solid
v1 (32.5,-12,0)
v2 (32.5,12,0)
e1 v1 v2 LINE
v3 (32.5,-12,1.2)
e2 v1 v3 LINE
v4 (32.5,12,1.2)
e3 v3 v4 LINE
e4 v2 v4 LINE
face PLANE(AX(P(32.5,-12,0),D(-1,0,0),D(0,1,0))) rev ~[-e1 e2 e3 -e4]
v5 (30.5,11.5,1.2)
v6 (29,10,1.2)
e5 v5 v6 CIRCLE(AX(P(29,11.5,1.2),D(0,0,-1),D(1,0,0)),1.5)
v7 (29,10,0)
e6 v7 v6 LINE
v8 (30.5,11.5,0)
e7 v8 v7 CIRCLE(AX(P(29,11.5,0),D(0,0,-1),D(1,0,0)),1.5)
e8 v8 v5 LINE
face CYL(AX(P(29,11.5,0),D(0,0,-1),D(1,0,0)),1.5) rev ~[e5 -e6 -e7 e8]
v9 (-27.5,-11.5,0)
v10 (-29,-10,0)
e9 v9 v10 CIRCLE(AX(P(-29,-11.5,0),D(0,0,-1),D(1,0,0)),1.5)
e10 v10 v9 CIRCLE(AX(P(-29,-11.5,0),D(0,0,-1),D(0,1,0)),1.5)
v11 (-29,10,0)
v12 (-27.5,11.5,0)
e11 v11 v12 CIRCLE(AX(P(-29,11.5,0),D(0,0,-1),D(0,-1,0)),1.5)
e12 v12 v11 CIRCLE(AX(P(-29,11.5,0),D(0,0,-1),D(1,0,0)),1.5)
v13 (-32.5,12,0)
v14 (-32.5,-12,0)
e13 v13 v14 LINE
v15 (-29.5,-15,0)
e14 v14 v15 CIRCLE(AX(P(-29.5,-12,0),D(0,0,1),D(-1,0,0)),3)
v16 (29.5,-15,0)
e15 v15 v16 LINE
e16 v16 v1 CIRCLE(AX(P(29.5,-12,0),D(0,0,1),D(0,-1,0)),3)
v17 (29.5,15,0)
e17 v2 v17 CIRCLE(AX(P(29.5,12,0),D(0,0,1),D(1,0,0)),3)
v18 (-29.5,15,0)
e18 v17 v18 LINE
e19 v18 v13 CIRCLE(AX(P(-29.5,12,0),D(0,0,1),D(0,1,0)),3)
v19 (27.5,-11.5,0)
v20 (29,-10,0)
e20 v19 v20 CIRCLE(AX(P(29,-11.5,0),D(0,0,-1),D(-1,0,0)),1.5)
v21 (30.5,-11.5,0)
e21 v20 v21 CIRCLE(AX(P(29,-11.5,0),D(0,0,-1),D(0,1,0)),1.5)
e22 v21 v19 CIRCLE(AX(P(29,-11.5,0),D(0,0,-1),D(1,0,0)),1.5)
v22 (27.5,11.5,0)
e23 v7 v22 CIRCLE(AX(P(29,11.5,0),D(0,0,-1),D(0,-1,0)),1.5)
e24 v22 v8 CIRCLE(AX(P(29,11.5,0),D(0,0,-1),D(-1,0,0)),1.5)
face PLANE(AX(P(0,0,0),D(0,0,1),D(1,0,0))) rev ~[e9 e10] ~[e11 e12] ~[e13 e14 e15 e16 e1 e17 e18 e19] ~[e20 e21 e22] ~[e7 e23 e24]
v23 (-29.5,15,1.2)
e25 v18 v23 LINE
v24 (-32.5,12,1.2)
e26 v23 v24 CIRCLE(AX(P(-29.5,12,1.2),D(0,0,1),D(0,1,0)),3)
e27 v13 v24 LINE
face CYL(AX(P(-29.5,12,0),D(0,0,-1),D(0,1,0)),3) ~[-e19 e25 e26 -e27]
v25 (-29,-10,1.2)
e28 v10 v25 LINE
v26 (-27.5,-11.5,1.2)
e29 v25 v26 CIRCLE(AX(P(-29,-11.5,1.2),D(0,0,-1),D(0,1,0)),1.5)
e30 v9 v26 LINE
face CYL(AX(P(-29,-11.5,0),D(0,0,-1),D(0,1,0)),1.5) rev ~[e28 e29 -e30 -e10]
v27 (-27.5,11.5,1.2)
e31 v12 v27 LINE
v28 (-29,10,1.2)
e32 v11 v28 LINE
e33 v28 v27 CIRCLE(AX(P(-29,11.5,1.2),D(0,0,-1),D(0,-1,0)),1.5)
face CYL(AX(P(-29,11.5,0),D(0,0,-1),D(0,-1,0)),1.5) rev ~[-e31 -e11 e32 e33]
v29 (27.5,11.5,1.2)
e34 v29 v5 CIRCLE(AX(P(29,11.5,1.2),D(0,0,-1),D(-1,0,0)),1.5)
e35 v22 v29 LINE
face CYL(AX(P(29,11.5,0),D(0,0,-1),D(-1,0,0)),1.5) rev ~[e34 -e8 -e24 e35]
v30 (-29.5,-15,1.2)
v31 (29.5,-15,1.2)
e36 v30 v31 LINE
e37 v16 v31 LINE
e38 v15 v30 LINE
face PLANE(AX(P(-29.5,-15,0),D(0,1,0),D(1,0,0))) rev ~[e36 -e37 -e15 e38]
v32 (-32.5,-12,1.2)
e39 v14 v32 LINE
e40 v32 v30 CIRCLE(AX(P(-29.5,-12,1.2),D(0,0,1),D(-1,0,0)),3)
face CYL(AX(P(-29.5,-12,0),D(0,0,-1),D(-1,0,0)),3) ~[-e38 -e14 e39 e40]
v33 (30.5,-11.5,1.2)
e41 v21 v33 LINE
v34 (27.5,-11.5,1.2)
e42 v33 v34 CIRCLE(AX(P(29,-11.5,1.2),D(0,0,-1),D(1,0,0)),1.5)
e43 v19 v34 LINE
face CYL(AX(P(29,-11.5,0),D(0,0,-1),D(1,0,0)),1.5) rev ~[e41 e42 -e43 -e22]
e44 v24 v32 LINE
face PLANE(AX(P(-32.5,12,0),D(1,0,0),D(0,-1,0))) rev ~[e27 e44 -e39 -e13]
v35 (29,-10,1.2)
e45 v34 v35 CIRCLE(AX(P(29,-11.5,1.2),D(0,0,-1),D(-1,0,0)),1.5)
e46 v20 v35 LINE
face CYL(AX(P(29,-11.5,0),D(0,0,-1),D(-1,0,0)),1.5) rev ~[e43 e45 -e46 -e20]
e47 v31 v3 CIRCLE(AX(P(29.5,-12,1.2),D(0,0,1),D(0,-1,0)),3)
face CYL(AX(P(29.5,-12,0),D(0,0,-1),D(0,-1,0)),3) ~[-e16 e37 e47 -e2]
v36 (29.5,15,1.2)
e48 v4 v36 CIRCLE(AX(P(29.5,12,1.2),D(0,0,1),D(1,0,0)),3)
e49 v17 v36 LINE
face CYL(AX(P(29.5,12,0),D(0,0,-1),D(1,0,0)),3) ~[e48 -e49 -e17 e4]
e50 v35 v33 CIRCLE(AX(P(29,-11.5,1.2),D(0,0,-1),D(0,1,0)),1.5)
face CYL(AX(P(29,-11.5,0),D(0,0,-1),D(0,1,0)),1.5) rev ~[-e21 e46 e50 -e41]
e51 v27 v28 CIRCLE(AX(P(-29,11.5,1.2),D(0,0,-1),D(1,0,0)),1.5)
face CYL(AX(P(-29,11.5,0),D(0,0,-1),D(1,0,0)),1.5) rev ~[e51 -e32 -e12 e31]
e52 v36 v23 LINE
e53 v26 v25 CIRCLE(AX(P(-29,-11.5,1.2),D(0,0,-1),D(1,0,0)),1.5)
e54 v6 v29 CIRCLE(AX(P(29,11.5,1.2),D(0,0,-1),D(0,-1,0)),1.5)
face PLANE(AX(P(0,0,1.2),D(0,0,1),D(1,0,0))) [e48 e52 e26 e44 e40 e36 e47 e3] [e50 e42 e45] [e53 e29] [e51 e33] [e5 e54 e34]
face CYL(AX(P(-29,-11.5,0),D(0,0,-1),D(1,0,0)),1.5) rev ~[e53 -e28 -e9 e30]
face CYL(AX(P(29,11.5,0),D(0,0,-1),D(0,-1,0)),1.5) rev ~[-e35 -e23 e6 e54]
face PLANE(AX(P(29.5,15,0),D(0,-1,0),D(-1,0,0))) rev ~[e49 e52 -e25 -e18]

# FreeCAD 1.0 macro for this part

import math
import FreeCAD as App
import Part
import Sketcher

V = App.Vector
Q = App.Units.Quantity

doc = App.newDocument("Part")
body = doc.addObject("PartDesign::Body", "Body")

# Sketch on XY plane
sketch1 = doc.addObject("Sketcher::SketchObject", "Sketch")
body.addObject(sketch1)
sketch1.AttachmentSupport = (doc.XY_Plane, [""])
sketch1.MapMode = "FlatFace"
sketch1.addGeometry(Part.LineSegment(V(-29.5, -15, 0), V(29.5, -15, 0)), False)
sketch1.addGeometry(Part.ArcOfCircle(Part.Circle(V(29.5, -12, 0), V(0, 0, 1), 3), math.radians(-90), math.radians(0)), False)
sketch1.addGeometry(Part.LineSegment(V(32.5, -12, 0), V(32.5, 12, 0)), False)
sketch1.addGeometry(Part.ArcOfCircle(Part.Circle(V(29.5, 12, 0), V(0, 0, 1), 3), math.radians(0), math.radians(90)), False)
sketch1.addGeometry(Part.LineSegment(V(29.5, 15, 0), V(-29.5, 15, 0)), False)
sketch1.addGeometry(Part.ArcOfCircle(Part.Circle(V(-29.5, 12, 0), V(0, 0, 1), 3), math.radians(90), math.radians(180)), False)
sketch1.addGeometry(Part.LineSegment(V(-32.5, 12, 0), V(-32.5, -12, 0)), False)
sketch1.addGeometry(Part.ArcOfCircle(Part.Circle(V(-29.5, -12, 0), V(0, 0, 1), 3), math.radians(180), math.radians(270)), False)
sketch1.addGeometry(Part.ArcOfCircle(Part.Circle(V(29, -11.5, 0), V(0, 0, 1), 1.5), math.radians(180), math.radians(360)), False)
sketch1.addGeometry(Part.ArcOfCircle(Part.Circle(V(29, -11.5, 0), V(0, 0, 1), 1.5), math.radians(90), math.radians(180)), False)
sketch1.addGeometry(Part.ArcOfCircle(Part.Circle(V(29, -11.5, 0), V(0, 0, 1), 1.5), math.radians(0), math.radians(90)), False)
sketch1.addGeometry(Part.ArcOfCircle(Part.Circle(V(29, 11.5, 0), V(0, 0, 1), 1.5), math.radians(-90), math.radians(0)), False)
sketch1.addGeometry(Part.ArcOfCircle(Part.Circle(V(29, 11.5, 0), V(0, 0, 1), 1.5), math.radians(180), math.radians(270)), False)
sketch1.addGeometry(Part.ArcOfCircle(Part.Circle(V(29, 11.5, 0), V(0, 0, 1), 1.5), math.radians(0), math.radians(180)), False)
sketch1.addGeometry(Part.ArcOfCircle(Part.Circle(V(-29, 11.5, 0), V(0, 0, 1), 1.5), math.radians(0), math.radians(270)), False)
sketch1.addGeometry(Part.ArcOfCircle(Part.Circle(V(-29, 11.5, 0), V(0, 0, 1), 1.5), math.radians(-90), math.radians(0)), False)
sketch1.addGeometry(Part.ArcOfCircle(Part.Circle(V(-29, -11.5, 0), V(0, 0, 1), 1.5), math.radians(90), math.radians(360)), False)
sketch1.addGeometry(Part.ArcOfCircle(Part.Circle(V(-29, -11.5, 0), V(0, 0, 1), 1.5), math.radians(0), math.radians(90)), False)
sketch1.addConstraint(Sketcher.Constraint("Tangent", 0, 2, 1, 1))
sketch1.addConstraint(Sketcher.Constraint("Tangent", 1, 2, 2, 1))
sketch1.addConstraint(Sketcher.Constraint("Tangent", 2, 2, 3, 1))
sketch1.addConstraint(Sketcher.Constraint("Tangent", 3, 2, 4, 1))
sketch1.addConstraint(Sketcher.Constraint("Tangent", 4, 2, 5, 1))
sketch1.addConstraint(Sketcher.Constraint("Tangent", 5, 2, 6, 1))
sketch1.addConstraint(Sketcher.Constraint("Tangent", 6, 2, 7, 1))
sketch1.addConstraint(Sketcher.Constraint("Tangent", 7, 2, 0, 1))
sketch1.addConstraint(Sketcher.Constraint("Tangent", 8, 1, 9, 2))
sketch1.addConstraint(Sketcher.Constraint("Tangent", 9, 1, 10, 2))
sketch1.addConstraint(Sketcher.Constraint("Tangent", 10, 1, 8, 2))
sketch1.addConstraint(Sketcher.Constraint("Tangent", 11, 1, 12, 2))
sketch1.addConstraint(Sketcher.Constraint("Tangent", 12, 1, 13, 2))
sketch1.addConstraint(Sketcher.Constraint("Tangent", 13, 1, 11, 2))
sketch1.addConstraint(Sketcher.Constraint("Tangent", 14, 1, 15, 2))
sketch1.addConstraint(Sketcher.Constraint("Coincident", 15, 1, 14, 2))
sketch1.addConstraint(Sketcher.Constraint("Tangent", 16, 1, 17, 2))
sketch1.addConstraint(Sketcher.Constraint("Coincident", 17, 1, 16, 2))
sketch1.addConstraint(Sketcher.Constraint("Horizontal", 0))
sketch1.addConstraint(Sketcher.Constraint("Vertical", 2))
sketch1.addConstraint(Sketcher.Constraint("Horizontal", 4))
sketch1.addConstraint(Sketcher.Constraint("Vertical", 6))
sketch1.addConstraint(Sketcher.Constraint("Equal", 1, 3))
sketch1.addConstraint(Sketcher.Constraint("Equal", 3, 5))
sketch1.addConstraint(Sketcher.Constraint("Equal", 5, 7))
sketch1.addConstraint(Sketcher.Constraint("Equal", 10, 11))
sketch1.addConstraint(Sketcher.Constraint("Equal", 13, 14))
sketch1.addConstraint(Sketcher.Constraint("Equal", 15, 16))
sketch1.addConstraint(Sketcher.Constraint("Symmetric", 1, 3, 5, 3, -1, 1))
sketch1.addConstraint(Sketcher.Constraint("Symmetric", 8, 3, 14, 3, -1, 1))
sketch1.addConstraint(Sketcher.Constraint("Symmetric", 11, 3, 16, 3, -1, 1))
sketch1.addConstraint(Sketcher.Constraint("Symmetric", 11, 3, 14, 3, -2))
sketch1.addConstraint(Sketcher.Constraint("Horizontal", 17, 3, 8, 1))
sketch1.addConstraint(Sketcher.Constraint("Horizontal", 8, 1, 10, 1))
sketch1.addConstraint(Sketcher.Constraint("Horizontal", 15, 3, 12, 1))
sketch1.addConstraint(Sketcher.Constraint("Horizontal", 12, 1, 13, 1))
sketch1.addConstraint(Sketcher.Constraint("Horizontal", 13, 1, 14, 1))
sketch1.addConstraint(Sketcher.Constraint("Horizontal", 10, 1, 17, 1))
sketch1.addConstraint(Sketcher.Constraint("Vertical", 13, 3, 9, 1))
sketch1.addConstraint(Sketcher.Constraint("Vertical", 9, 1, 11, 1))
sketch1.addConstraint(Sketcher.Constraint("Vertical", 17, 3, 15, 1))
sketch1.addConstraint(Sketcher.Constraint("Vertical", 15, 1, 16, 1))
sketch1.addConstraint(Sketcher.Constraint("Radius", 1, Q("3 mm")))
sketch1.addConstraint(Sketcher.Constraint("Radius", 8, Q("1.5 mm")))
sketch1.addConstraint(Sketcher.Constraint("DistanceX", 0, 1, 0, 2, Q("59 mm")))
sketch1.addConstraint(Sketcher.Constraint("DistanceY", 2, 1, 2, 2, Q("24 mm")))
sketch1.addConstraint(Sketcher.Constraint("DistanceX", -1, 1, 8, 3, Q("29 mm")))
sketch1.addConstraint(Sketcher.Constraint("DistanceY", 9, 1, -1, 1, Q("10 mm")))
pad1 = doc.addObject("PartDesign::Pad", "Pad")
body.addObject(pad1)
pad1.Profile = sketch1
pad1.Length = 1.2

doc.recompute()
